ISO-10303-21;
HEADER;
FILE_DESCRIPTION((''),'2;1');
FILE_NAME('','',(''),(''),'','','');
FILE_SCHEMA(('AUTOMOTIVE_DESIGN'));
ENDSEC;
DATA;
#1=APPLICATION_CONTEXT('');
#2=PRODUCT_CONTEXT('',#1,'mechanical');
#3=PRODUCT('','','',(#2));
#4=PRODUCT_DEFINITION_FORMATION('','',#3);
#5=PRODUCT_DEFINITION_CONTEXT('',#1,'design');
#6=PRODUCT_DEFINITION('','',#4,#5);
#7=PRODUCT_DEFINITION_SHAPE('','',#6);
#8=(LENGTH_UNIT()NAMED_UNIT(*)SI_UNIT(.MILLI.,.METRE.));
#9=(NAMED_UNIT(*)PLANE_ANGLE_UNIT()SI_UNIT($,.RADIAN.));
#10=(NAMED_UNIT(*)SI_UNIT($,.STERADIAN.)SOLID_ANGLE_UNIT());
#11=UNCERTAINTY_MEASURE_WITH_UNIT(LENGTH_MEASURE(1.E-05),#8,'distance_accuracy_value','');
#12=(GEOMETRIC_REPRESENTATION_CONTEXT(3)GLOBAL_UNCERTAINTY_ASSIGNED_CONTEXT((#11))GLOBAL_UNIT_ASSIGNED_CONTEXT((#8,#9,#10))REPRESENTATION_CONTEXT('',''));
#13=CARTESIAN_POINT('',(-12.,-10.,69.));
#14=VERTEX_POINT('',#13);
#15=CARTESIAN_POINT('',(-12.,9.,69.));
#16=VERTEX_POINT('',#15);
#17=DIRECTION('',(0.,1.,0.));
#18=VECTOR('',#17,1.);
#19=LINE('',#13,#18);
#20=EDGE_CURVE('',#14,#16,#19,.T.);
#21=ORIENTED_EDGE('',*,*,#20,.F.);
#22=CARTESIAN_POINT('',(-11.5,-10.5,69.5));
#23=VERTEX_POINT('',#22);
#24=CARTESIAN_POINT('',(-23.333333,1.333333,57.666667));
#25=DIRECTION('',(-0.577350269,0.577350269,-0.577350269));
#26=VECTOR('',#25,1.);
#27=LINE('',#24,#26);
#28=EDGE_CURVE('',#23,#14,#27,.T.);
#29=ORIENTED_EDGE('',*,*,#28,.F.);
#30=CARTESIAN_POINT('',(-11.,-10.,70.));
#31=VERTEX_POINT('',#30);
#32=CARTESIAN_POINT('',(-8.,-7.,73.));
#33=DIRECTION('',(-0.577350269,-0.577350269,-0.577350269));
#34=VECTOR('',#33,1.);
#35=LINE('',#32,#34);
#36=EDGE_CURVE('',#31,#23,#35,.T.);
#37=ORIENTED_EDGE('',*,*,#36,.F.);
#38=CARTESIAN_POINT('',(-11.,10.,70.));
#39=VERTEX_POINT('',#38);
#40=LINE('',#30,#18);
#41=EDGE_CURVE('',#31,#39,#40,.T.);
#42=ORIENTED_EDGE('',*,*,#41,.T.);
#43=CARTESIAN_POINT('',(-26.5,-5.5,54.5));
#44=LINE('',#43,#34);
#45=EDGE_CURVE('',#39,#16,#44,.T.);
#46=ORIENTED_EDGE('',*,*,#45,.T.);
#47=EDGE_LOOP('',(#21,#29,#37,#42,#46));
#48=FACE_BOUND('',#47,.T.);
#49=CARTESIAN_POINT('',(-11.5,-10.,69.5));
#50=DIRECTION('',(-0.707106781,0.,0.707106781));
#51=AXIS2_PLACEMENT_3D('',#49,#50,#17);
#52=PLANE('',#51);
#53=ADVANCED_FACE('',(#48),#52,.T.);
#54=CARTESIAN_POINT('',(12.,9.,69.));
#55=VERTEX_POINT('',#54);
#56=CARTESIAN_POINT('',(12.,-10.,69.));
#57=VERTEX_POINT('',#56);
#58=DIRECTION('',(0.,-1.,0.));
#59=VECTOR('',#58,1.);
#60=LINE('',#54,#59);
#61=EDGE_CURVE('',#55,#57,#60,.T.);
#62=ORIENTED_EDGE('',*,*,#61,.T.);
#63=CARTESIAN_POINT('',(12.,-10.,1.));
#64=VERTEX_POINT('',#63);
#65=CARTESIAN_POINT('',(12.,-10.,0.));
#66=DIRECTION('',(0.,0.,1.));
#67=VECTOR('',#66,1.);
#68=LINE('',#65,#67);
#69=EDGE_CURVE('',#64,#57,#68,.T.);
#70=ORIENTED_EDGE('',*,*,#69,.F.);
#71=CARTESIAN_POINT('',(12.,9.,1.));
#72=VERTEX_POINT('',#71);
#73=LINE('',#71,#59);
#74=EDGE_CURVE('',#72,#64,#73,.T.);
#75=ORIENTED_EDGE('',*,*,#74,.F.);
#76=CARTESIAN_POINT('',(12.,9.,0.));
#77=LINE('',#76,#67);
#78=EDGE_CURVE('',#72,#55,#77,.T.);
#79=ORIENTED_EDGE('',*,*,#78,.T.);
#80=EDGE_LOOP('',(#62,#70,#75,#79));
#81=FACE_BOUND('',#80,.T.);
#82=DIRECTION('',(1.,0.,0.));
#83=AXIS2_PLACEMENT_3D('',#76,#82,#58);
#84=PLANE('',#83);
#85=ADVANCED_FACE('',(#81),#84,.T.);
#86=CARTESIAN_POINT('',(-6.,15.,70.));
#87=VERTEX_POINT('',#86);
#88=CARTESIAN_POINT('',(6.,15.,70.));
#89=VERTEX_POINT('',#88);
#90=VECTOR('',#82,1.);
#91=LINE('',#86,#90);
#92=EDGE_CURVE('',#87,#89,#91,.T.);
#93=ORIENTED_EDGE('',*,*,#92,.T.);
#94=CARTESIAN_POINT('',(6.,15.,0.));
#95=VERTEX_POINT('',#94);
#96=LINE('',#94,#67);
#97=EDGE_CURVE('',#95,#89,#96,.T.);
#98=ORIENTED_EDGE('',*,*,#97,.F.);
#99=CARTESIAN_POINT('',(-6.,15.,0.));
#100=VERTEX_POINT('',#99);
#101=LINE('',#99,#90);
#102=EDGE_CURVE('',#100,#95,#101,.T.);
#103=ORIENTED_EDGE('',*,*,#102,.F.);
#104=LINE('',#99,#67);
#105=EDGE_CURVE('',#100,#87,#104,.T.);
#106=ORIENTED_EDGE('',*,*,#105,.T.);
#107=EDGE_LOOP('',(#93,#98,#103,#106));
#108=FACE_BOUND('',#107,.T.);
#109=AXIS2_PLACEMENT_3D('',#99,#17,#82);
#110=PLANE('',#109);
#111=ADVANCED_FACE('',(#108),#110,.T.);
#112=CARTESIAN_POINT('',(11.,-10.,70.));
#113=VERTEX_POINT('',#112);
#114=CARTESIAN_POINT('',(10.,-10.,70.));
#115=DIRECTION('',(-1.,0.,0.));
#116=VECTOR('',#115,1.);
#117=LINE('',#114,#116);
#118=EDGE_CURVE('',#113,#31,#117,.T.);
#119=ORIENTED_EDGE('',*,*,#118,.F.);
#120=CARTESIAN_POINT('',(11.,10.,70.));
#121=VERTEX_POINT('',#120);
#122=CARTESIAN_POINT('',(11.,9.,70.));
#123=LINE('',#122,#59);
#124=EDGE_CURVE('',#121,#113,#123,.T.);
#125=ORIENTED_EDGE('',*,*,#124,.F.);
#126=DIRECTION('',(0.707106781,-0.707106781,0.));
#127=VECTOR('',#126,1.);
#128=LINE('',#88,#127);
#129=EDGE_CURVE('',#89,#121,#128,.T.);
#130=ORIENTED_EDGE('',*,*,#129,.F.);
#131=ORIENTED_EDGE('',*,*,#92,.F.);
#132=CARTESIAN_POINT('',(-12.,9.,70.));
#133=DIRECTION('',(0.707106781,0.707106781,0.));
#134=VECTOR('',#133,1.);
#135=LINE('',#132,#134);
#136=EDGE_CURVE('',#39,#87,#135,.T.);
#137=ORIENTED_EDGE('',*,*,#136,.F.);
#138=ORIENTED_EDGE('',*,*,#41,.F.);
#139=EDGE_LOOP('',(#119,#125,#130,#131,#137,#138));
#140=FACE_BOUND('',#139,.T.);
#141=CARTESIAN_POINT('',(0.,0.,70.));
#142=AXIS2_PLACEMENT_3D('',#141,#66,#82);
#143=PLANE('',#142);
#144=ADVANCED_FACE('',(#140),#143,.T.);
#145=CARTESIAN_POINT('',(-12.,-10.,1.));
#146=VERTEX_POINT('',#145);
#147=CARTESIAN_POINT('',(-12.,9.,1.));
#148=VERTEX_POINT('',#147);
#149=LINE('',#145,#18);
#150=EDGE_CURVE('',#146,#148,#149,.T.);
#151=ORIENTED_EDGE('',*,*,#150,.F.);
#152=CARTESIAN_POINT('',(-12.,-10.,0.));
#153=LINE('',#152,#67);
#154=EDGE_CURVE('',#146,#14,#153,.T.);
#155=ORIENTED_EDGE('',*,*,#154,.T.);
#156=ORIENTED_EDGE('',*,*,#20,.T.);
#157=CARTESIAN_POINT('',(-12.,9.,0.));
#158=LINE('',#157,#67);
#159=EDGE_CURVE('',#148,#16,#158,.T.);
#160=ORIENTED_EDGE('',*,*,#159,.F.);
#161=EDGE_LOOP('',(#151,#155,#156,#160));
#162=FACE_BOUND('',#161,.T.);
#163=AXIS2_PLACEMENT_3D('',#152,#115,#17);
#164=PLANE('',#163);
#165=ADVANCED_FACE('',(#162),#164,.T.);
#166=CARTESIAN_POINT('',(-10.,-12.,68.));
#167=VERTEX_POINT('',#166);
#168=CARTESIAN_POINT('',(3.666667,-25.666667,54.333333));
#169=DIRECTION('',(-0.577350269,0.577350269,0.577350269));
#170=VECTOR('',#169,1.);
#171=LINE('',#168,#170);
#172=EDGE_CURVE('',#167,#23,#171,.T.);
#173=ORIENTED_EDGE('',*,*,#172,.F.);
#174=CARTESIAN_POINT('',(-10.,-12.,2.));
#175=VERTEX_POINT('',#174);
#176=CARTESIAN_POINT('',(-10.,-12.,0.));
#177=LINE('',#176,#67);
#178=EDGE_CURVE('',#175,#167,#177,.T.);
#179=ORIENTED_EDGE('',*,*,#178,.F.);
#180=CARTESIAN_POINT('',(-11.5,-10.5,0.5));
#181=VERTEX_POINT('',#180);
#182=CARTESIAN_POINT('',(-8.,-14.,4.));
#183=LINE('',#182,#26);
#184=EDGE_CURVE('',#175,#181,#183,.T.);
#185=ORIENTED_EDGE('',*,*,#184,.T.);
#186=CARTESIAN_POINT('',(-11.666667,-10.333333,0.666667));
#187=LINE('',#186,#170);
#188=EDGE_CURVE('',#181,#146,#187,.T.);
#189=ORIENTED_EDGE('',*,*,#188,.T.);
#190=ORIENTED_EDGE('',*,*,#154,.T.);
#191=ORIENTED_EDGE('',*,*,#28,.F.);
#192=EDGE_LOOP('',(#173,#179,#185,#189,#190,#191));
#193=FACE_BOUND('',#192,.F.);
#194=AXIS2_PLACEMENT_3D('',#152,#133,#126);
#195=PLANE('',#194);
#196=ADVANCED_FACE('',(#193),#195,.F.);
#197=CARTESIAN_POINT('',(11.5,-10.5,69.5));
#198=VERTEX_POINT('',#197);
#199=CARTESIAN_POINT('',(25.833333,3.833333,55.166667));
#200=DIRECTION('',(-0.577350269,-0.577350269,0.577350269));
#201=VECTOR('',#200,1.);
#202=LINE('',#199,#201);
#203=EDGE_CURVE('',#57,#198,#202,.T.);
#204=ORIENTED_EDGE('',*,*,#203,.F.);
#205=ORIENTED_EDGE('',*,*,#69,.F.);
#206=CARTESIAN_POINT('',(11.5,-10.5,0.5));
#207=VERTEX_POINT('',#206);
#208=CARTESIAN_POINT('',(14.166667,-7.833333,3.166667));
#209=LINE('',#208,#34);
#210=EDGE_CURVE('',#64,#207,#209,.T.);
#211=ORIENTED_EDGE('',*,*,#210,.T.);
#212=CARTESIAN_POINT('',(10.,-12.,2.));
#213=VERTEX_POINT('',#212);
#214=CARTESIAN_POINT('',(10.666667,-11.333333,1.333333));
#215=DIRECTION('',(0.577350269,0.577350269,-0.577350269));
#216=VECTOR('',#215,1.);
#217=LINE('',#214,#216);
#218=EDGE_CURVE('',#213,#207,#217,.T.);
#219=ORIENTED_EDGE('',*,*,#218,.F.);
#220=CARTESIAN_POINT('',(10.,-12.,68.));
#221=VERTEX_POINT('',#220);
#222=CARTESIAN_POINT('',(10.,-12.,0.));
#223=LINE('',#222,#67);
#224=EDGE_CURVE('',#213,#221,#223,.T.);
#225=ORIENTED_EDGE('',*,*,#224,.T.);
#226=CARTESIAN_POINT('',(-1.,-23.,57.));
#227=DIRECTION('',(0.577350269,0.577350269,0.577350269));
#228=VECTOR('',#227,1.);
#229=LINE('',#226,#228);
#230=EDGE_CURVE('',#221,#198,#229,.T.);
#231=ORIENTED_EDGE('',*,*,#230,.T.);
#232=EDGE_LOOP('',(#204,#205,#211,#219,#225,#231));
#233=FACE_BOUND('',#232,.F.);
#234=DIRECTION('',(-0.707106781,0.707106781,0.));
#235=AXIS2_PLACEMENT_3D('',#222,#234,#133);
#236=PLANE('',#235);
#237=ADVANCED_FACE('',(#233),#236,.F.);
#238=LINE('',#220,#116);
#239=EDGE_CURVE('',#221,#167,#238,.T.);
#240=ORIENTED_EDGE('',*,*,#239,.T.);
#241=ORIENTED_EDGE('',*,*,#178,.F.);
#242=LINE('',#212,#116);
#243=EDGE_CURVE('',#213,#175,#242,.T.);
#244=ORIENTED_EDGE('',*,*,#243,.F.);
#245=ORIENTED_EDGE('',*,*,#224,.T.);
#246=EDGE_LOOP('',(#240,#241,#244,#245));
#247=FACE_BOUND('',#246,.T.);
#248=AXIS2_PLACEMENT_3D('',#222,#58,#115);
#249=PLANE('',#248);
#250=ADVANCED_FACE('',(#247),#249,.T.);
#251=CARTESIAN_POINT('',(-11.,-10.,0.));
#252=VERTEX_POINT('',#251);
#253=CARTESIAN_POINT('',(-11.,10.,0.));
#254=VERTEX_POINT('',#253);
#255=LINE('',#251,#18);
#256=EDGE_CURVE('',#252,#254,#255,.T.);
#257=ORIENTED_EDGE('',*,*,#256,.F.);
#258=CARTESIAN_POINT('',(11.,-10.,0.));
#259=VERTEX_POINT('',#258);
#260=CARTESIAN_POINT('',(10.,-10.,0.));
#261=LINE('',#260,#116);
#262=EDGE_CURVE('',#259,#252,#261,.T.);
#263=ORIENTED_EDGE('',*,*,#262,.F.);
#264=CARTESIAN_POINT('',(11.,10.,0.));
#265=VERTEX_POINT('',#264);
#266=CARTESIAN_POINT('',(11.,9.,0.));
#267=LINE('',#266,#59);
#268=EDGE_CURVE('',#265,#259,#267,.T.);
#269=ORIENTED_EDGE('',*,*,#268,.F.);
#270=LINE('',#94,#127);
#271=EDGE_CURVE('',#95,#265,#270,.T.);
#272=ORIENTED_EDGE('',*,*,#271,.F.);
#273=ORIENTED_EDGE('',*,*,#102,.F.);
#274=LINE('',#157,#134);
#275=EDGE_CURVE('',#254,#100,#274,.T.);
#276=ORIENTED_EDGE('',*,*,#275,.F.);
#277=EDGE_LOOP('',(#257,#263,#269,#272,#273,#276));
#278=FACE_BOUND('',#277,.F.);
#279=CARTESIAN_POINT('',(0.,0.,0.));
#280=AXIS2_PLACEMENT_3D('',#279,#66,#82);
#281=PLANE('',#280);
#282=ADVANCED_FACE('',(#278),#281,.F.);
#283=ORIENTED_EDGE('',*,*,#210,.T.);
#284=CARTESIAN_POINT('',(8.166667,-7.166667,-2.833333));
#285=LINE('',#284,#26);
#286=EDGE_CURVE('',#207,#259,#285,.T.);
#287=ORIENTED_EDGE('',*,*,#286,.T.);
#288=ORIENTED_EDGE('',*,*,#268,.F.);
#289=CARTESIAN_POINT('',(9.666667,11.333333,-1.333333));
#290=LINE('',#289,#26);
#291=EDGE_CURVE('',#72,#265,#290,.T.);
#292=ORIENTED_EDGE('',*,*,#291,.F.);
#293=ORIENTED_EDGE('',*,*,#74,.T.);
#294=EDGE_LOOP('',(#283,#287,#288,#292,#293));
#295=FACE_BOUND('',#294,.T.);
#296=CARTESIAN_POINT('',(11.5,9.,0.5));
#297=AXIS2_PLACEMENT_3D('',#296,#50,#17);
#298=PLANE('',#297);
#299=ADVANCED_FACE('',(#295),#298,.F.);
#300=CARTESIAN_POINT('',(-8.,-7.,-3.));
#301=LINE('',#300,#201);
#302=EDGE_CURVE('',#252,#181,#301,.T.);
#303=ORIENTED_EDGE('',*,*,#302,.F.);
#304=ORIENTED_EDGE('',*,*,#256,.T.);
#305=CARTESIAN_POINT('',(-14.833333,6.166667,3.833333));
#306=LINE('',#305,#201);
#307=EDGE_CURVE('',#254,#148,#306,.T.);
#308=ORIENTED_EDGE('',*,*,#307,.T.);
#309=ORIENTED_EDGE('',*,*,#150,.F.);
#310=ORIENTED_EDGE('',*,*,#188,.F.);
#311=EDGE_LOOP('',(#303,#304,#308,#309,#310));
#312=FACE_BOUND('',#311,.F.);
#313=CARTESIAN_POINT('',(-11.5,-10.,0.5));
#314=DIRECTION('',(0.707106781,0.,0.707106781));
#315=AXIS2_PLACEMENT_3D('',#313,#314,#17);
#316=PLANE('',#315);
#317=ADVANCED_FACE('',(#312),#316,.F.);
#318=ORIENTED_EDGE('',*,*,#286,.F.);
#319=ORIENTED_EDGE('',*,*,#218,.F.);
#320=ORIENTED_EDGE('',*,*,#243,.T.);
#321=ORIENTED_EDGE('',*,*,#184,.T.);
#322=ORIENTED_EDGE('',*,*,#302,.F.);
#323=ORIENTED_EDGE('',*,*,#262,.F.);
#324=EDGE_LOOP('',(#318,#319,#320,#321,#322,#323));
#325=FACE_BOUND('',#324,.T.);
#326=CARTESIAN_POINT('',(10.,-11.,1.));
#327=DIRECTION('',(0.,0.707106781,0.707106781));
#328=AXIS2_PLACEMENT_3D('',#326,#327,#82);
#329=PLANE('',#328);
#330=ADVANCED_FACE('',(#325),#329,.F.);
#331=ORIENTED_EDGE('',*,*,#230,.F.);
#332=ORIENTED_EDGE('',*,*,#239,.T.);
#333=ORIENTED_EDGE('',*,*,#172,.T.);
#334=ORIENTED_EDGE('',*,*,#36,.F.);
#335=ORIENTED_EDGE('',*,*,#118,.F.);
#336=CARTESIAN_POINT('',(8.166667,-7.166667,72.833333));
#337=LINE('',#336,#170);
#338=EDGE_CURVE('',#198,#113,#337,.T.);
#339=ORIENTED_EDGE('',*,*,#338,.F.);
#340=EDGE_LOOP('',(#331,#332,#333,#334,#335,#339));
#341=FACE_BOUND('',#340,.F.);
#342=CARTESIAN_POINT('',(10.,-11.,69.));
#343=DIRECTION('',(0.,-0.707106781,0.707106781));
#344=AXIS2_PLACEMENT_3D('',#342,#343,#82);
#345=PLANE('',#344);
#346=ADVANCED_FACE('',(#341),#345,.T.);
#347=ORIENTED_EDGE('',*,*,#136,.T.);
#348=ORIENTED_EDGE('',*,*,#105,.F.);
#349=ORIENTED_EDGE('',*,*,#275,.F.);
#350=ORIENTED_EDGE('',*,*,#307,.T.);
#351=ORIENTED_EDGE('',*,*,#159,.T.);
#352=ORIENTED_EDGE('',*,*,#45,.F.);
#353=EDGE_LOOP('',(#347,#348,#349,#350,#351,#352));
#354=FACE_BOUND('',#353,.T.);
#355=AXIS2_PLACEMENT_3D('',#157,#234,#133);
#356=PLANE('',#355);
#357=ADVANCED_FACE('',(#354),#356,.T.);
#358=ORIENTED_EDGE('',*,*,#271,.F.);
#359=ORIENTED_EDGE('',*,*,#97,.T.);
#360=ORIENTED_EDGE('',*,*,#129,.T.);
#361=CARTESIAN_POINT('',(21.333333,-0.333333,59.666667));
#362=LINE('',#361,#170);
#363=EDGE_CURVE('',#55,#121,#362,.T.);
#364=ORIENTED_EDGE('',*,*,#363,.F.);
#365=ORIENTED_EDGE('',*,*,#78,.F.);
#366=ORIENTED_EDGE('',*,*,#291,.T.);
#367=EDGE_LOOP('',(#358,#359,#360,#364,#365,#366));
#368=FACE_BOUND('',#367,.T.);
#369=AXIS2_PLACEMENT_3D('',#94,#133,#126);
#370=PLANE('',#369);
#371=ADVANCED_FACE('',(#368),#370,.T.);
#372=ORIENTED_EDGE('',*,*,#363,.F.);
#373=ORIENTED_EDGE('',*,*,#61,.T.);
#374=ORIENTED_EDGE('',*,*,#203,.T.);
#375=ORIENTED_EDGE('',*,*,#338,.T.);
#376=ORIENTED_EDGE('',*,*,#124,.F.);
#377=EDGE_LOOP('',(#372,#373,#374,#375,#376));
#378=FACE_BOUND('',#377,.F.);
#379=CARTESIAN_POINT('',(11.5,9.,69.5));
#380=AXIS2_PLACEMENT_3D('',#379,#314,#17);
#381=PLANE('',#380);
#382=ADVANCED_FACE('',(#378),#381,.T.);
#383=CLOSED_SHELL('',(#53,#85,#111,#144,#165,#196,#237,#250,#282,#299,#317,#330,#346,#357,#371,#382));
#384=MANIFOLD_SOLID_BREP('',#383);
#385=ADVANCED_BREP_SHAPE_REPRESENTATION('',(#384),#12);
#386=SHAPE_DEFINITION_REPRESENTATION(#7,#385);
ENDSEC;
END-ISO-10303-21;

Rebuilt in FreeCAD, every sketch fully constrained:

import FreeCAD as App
import Part
import Sketcher
from FreeCAD import Vector
Q = App.Units.Quantity


def edges_at(feature, points):
    """Names of the edges that pass closest to the given points."""
    edges = feature.Shape.Edges
    near = lambda p: min(range(len(edges)), key=lambda i: edges[i].distToShape(Part.Vertex(*p))[0])
    return sorted({f"Edge{near(p) + 1}" for p in points})

doc = App.newDocument("Part")
params = doc.addObject("Spreadsheet::Sheet", "Params")
for row, (alias, value) in enumerate([
    ("sketch1_width", "12 mm"),
    ("pad1_length", "70 mm"),
    ("chamfer_size", "2 mm"),
    ("chamfer2_size", "1 mm"),
], start=1):
    params.set(f"A{row}", alias)
    params.set(f"B{row}", "=" + value)
    params.setAlias(f"B{row}", alias)

body = doc.addObject("PartDesign::Body", "Body")

# Sketch on XY plane
sketch1 = body.newObject("Sketcher::SketchObject", "Sketch")
sketch1.AttachmentSupport = (doc.getObject("XY_Plane"), [""])
sketch1.MapMode = "FlatFace"
sketch1.addGeometry([
    Part.LineSegment(Vector(6, 15, 0), Vector(-6, 15, 0)),  # 0
    Part.LineSegment(Vector(-6, 15, 0), Vector(-12, 9, 0)),  # 1
    Part.LineSegment(Vector(-12, 9, 0), Vector(-12, -10, 0)),  # 2
    Part.LineSegment(Vector(-12, -10, 0), Vector(-10, -12, 0)),  # 3
    Part.LineSegment(Vector(-10, -12, 0), Vector(10, -12, 0)),  # 4
    Part.LineSegment(Vector(10, -12, 0), Vector(12, -10, 0)),  # 5
    Part.LineSegment(Vector(12, -10, 0), Vector(12, 9, 0)),  # 6
    Part.LineSegment(Vector(12, 9, 0), Vector(6, 15, 0)),  # 7
], False)
sketch1.addConstraint([
    Sketcher.Constraint("Coincident", 0, 2, 1, 1),
    Sketcher.Constraint("Coincident", 1, 2, 2, 1),
    Sketcher.Constraint("Coincident", 2, 2, 3, 1),
    Sketcher.Constraint("Coincident", 3, 2, 4, 1),
    Sketcher.Constraint("Coincident", 4, 2, 5, 1),
    Sketcher.Constraint("Coincident", 5, 2, 6, 1),
    Sketcher.Constraint("Coincident", 6, 2, 7, 1),
    Sketcher.Constraint("Coincident", 7, 2, 0, 1),
    Sketcher.Constraint("Horizontal", 0),
    Sketcher.Constraint("Vertical", 2),
    Sketcher.Constraint("Horizontal", 4),
    Sketcher.Constraint("Vertical", 6),
    Sketcher.Constraint("Symmetric", 2, 2, 5, 2, -2),
    Sketcher.Constraint("Perpendicular", 1, 3),
    Sketcher.Constraint("Perpendicular", 3, 5),
    Sketcher.Constraint("Perpendicular", 5, 7),
    Sketcher.Constraint("Horizontal", 1, 2, 6, 2),
    Sketcher.Constraint("Equal", 3, 5),
    Sketcher.Constraint("DistanceX", 0, 2, 0, 1, Q("12 mm")),
    Sketcher.Constraint("DistanceX", 1, 2, -1, 1, Q("12 mm")),
    Sketcher.Constraint("DistanceY", 3, 2, -1, 1, Q("12 mm")),
    Sketcher.Constraint("DistanceX", 2, 2, 3, 2, Q("2 mm")),
    Sketcher.Constraint("DistanceY", 3, 2, 0, 2, Q("27 mm")),
])
sketch1.setExpression("Constraints[18]", "Params.sketch1_width")
pad1 = body.newObject("PartDesign::Pad", "Pad")
pad1.Profile = sketch1
pad1.setExpression("Length", "Params.pad1_length")
doc.recompute()

chamfer = body.newObject("PartDesign::Chamfer", "Chamfer")
chamfer.Base = (pad1, edges_at(pad1, [(0, -12, 70), (0, -12, 0)]))
chamfer.setExpression("Size", "Params.chamfer_size")
doc.recompute()

chamfer2 = body.newObject("PartDesign::Chamfer", "Chamfer001")
chamfer2.Base = (chamfer, edges_at(chamfer, [
    (12, -0.5, 0),
    (-12, -0.5, 0),
    (-12, -0.5, 70),
    (12, -0.5, 70),
]))
chamfer2.setExpression("Size", "Params.chamfer2_size")

doc.recompute()
